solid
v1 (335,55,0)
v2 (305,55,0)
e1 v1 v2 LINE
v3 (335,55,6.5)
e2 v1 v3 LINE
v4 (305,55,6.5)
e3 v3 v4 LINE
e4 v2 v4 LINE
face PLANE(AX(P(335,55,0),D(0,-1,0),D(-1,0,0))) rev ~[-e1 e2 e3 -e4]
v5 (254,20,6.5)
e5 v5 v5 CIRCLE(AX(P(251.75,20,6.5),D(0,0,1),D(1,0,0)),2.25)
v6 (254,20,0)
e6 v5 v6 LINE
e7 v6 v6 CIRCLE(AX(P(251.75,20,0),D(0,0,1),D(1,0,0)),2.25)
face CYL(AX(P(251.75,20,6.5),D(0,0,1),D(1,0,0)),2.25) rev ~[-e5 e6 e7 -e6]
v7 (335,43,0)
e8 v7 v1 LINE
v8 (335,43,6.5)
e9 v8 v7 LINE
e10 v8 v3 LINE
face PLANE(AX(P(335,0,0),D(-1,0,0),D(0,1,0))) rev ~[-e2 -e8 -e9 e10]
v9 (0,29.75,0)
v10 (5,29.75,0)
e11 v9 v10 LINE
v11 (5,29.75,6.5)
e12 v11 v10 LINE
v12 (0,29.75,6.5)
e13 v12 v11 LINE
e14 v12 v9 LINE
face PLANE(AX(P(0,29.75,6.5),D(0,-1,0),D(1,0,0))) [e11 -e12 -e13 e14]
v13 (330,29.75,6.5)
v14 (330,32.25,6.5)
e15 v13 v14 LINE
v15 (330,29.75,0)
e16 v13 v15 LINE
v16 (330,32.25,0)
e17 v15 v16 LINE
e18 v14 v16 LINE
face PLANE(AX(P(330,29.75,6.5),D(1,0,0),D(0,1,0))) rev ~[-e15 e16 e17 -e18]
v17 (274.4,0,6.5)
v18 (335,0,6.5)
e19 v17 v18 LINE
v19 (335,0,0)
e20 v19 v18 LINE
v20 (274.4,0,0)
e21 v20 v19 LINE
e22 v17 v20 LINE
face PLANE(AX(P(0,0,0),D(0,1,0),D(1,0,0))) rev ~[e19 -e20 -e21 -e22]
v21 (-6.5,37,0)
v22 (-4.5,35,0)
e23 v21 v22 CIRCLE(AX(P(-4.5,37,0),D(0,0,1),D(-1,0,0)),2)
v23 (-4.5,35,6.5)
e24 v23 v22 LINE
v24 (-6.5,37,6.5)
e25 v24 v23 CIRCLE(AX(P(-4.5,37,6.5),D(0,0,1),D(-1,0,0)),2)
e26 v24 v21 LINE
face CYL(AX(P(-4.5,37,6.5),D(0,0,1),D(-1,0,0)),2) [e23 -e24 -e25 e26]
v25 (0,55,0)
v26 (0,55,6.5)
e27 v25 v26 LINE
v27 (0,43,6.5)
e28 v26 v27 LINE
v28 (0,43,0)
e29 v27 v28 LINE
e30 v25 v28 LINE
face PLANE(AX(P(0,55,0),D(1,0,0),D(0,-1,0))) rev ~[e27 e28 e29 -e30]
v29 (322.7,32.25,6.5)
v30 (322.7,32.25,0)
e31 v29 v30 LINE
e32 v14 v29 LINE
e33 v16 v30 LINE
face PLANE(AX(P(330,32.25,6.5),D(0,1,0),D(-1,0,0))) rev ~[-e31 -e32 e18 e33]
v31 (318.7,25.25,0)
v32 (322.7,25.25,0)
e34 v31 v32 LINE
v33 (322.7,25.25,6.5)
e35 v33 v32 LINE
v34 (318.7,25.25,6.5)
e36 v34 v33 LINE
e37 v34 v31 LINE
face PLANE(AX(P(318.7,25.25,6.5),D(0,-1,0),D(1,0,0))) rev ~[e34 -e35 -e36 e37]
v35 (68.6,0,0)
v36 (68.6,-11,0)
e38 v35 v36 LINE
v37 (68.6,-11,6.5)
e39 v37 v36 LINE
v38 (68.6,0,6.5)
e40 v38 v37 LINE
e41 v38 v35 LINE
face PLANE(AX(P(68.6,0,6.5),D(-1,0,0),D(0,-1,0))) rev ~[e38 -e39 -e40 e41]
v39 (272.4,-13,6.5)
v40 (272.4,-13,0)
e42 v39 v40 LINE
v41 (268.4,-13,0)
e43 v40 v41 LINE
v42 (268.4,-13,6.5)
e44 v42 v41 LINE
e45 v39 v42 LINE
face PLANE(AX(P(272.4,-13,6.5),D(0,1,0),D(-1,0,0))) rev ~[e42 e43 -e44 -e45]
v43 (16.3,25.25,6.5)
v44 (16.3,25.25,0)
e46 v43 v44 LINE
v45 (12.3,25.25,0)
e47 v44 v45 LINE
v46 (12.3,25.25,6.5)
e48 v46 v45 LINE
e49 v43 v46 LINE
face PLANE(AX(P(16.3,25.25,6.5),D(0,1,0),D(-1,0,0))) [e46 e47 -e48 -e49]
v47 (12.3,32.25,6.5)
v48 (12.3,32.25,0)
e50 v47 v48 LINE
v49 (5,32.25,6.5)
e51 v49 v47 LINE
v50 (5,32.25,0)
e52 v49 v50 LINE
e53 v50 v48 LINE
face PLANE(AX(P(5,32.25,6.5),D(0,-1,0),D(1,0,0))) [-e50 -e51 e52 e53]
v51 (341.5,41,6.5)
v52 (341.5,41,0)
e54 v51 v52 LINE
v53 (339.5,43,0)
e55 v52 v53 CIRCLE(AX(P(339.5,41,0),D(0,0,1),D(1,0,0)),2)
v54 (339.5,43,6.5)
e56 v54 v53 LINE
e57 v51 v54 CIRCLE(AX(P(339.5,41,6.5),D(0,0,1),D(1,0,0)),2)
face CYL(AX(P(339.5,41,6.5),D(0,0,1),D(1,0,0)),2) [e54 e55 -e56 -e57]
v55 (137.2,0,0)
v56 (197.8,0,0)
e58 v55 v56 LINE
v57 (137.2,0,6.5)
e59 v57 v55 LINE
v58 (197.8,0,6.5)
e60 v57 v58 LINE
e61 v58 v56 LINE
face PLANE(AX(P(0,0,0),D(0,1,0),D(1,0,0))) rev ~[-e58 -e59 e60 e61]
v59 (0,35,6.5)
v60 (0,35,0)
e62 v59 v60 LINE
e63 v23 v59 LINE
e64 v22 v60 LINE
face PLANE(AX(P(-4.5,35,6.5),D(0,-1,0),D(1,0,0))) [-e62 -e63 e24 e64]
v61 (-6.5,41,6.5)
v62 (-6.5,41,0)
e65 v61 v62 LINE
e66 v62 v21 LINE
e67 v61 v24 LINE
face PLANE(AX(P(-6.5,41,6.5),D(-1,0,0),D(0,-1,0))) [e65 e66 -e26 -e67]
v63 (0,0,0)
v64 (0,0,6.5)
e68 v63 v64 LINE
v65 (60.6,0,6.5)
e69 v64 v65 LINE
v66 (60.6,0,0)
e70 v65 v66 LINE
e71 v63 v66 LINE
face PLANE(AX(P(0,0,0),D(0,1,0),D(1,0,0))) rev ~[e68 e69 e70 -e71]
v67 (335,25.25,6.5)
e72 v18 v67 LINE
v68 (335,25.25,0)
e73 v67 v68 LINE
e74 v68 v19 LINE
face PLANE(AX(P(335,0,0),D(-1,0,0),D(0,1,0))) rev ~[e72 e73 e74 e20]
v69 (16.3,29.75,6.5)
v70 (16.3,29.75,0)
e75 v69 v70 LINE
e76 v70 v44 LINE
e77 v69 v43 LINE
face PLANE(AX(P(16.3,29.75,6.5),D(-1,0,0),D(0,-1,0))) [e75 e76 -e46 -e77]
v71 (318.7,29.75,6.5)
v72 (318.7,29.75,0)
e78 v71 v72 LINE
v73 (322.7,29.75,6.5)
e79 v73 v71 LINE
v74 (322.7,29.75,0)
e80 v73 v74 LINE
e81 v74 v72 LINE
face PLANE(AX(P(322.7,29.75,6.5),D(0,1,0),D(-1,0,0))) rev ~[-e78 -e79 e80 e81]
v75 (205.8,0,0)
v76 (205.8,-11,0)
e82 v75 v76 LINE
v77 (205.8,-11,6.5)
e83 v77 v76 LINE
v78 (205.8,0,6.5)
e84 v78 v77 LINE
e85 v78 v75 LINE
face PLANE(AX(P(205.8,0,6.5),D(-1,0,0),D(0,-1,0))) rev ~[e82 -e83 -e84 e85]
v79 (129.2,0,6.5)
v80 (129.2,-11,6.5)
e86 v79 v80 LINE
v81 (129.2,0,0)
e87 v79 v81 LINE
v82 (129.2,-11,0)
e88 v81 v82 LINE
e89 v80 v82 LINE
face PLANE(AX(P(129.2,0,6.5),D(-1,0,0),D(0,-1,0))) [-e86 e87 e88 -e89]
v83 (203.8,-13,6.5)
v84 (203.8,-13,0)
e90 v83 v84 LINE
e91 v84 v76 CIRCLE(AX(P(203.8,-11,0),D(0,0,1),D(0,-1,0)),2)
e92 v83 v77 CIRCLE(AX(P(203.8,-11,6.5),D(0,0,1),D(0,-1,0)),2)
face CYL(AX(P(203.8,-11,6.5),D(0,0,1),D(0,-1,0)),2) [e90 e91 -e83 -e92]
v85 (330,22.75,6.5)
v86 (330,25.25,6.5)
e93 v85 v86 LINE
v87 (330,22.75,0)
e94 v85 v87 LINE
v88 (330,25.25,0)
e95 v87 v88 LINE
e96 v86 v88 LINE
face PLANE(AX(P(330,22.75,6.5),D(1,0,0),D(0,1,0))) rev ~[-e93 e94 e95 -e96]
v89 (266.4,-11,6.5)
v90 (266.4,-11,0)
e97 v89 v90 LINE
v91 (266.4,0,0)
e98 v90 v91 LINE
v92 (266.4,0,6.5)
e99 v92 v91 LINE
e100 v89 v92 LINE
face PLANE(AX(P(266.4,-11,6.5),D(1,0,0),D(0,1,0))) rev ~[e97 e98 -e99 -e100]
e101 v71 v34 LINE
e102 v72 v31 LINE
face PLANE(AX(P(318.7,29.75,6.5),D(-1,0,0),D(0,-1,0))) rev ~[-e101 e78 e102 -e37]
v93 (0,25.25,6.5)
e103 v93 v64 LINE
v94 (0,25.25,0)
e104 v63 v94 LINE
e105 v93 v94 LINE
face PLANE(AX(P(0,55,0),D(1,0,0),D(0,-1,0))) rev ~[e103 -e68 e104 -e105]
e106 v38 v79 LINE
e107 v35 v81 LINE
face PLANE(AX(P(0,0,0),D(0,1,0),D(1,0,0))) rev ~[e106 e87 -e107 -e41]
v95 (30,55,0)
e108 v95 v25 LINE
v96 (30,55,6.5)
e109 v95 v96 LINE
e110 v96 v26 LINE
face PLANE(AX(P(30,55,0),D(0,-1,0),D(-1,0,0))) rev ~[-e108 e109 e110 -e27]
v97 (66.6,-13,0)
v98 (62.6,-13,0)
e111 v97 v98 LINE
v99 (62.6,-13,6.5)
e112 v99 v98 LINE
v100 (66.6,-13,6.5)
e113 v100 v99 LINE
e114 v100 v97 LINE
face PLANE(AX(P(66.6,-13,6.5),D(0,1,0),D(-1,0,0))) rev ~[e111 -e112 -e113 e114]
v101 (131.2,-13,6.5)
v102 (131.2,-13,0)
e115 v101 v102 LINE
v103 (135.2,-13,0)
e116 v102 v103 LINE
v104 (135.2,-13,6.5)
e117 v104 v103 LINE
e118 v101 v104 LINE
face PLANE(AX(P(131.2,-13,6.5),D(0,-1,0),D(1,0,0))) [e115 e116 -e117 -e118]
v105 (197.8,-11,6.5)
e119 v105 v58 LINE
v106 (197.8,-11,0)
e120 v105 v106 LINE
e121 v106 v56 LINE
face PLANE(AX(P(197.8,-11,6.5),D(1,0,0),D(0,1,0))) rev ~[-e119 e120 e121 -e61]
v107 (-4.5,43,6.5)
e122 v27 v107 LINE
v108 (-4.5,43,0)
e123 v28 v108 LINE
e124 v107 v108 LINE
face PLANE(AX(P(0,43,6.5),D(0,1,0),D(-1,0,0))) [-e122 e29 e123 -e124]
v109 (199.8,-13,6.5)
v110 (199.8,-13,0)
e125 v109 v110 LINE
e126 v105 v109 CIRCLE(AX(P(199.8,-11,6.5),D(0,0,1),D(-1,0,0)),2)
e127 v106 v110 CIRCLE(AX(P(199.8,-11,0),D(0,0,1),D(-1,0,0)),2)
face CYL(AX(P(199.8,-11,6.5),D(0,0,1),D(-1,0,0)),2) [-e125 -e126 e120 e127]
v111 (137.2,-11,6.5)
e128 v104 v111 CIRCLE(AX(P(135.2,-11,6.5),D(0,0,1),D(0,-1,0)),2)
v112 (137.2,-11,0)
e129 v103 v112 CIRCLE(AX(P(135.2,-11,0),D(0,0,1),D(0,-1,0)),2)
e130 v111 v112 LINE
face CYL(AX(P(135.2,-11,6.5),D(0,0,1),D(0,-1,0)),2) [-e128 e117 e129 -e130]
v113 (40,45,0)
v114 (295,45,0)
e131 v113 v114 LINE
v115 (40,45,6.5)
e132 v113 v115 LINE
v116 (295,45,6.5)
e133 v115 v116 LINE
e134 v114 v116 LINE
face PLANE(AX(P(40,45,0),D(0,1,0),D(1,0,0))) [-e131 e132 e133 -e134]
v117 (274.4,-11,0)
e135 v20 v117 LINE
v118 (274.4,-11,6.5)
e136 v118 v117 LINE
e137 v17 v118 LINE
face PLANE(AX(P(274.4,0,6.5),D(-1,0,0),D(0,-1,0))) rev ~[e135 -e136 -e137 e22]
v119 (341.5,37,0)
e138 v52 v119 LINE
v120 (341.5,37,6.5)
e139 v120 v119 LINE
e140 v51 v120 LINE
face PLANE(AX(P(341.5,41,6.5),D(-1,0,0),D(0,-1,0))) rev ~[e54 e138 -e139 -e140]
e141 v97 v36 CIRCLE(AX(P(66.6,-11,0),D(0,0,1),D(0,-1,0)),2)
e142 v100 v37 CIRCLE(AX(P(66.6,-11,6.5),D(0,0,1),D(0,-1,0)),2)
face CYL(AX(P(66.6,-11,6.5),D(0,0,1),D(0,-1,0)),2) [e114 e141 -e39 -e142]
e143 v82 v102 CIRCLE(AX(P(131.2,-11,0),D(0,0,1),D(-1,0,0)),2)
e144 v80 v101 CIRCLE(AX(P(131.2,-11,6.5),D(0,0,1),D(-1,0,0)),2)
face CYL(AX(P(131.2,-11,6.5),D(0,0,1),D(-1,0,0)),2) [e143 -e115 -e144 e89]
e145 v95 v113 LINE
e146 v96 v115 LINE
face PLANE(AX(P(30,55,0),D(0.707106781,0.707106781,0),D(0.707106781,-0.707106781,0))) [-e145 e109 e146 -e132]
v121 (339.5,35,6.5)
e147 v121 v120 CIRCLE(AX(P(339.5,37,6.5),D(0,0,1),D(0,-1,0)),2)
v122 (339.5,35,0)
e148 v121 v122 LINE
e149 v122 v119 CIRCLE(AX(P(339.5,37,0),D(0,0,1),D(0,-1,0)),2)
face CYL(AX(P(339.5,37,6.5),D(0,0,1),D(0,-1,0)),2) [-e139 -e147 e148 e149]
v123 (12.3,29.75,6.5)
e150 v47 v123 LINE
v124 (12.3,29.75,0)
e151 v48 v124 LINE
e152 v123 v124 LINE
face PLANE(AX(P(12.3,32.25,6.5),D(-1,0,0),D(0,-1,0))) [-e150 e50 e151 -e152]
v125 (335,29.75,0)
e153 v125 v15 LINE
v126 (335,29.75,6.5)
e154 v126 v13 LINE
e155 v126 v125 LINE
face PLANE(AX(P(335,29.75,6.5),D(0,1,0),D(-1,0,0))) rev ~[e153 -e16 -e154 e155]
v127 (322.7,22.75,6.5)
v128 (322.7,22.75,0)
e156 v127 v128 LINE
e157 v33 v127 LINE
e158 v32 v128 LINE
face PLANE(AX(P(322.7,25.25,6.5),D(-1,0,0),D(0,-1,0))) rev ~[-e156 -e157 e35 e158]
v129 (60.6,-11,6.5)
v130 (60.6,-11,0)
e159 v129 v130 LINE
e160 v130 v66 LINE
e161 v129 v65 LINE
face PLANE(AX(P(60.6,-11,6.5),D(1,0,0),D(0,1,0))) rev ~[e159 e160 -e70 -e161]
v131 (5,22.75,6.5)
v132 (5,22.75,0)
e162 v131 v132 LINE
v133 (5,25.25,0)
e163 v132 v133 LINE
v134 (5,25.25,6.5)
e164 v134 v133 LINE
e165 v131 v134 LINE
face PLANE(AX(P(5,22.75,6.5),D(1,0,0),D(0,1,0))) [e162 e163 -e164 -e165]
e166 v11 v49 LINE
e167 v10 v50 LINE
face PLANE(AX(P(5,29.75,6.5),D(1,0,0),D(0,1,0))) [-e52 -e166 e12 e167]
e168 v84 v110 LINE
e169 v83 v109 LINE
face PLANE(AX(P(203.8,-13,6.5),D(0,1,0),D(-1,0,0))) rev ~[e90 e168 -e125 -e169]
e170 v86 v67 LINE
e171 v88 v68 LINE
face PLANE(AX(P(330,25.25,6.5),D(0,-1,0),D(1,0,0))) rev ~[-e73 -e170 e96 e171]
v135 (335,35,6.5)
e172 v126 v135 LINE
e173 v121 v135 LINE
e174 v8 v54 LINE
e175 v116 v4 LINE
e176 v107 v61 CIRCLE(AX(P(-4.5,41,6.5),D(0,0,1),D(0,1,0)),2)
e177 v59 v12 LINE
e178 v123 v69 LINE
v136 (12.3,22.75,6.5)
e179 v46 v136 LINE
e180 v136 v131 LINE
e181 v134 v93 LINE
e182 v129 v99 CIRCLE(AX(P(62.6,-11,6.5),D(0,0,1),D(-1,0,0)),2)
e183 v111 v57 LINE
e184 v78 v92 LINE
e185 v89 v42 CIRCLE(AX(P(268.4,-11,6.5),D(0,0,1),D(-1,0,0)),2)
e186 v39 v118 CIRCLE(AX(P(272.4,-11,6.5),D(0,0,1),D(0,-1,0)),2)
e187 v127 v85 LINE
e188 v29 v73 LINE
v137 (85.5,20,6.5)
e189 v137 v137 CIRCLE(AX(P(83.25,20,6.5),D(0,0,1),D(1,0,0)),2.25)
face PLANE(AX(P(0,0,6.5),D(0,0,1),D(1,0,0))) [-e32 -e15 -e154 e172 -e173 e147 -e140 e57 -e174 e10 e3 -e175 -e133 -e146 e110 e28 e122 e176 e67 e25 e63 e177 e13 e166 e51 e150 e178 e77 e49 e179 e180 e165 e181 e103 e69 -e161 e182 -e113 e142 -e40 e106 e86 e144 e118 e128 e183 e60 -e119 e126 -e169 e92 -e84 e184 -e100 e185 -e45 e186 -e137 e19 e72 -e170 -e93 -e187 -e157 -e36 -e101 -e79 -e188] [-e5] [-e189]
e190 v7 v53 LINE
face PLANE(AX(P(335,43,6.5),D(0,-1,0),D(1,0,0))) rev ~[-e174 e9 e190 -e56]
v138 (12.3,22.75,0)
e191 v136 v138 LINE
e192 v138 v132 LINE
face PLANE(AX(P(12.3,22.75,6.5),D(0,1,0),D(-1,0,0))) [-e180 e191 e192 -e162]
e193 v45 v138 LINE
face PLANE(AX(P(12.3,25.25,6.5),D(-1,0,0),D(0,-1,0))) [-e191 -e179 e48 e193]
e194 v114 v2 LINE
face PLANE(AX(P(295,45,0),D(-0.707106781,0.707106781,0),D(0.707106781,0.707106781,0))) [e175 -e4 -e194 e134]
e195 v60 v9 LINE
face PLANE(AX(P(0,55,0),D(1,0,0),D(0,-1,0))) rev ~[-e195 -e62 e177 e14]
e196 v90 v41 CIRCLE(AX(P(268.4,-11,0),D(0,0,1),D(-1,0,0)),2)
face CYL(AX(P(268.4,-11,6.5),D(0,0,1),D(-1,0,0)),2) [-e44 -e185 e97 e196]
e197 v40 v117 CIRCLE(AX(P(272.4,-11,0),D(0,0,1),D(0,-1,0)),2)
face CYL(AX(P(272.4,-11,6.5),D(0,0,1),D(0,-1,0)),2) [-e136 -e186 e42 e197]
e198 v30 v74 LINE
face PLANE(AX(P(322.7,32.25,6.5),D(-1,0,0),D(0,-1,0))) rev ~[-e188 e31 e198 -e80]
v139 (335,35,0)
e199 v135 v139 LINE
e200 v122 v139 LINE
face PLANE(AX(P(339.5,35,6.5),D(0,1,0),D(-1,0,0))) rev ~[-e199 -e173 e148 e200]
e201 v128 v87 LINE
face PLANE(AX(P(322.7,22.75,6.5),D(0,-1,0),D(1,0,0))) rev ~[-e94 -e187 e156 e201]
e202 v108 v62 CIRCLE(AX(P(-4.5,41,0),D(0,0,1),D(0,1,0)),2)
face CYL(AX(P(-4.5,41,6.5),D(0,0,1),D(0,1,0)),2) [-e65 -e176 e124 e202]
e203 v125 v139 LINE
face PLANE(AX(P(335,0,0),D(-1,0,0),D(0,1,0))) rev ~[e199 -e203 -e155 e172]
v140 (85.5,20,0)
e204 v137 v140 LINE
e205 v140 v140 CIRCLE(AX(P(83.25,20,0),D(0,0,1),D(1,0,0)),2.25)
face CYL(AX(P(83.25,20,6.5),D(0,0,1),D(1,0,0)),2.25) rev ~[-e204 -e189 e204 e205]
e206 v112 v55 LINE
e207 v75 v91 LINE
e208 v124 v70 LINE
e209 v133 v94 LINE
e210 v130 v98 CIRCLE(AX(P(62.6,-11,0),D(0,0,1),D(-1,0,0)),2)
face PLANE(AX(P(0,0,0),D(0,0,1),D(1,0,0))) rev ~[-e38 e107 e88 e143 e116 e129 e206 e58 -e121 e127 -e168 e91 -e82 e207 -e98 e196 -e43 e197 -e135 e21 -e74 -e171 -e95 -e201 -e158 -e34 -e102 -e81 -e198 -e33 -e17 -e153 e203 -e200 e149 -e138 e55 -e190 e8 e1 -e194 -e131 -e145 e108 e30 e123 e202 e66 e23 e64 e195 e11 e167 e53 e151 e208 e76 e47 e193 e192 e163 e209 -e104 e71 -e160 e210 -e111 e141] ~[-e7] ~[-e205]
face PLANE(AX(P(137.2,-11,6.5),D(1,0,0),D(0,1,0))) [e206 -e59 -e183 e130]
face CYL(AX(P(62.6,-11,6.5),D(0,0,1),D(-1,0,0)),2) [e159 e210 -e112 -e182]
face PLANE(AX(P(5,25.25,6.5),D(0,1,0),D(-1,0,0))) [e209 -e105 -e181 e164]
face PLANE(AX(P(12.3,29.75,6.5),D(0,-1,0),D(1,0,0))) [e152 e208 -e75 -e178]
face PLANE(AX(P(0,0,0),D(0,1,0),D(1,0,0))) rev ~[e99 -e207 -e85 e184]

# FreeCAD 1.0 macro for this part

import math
import FreeCAD as App
import Part
import Sketcher
Q = App.Units.Quantity

doc = App.newDocument("Part")
body = doc.addObject("PartDesign::Body", "Body")

# Sketch on XY plane
sketch1 = body.newObject("Sketcher::SketchObject", "Sketch")
sketch1.AttachmentSupport = (doc.getObject("XY_Plane"), [""])
sketch1.MapMode = "FlatFace"
sketch1.addGeometry(Part.LineSegment(App.Vector(0, 55, 0), App.Vector(0, 0, 0)), False)
sketch1.addGeometry(Part.LineSegment(App.Vector(0, 0, 0), App.Vector(335, 0, 0)), False)
sketch1.addGeometry(Part.LineSegment(App.Vector(335, 0, 0), App.Vector(335, 55, 0)), False)
sketch1.addGeometry(Part.LineSegment(App.Vector(335, 55, 0), App.Vector(305, 55, 0)), False)
sketch1.addGeometry(Part.LineSegment(App.Vector(305, 55, 0), App.Vector(295, 45, 0)), False)
sketch1.addGeometry(Part.LineSegment(App.Vector(295, 45, 0), App.Vector(40, 45, 0)), False)
sketch1.addGeometry(Part.LineSegment(App.Vector(40, 45, 0), App.Vector(30, 55, 0)), False)
sketch1.addGeometry(Part.LineSegment(App.Vector(30, 55, 0), App.Vector(0, 55, 0)), False)
sketch1.addConstraint(Sketcher.Constraint("Coincident", 0, 2, 1, 1))
sketch1.addConstraint(Sketcher.Constraint("Coincident", 1, 2, 2, 1))
sketch1.addConstraint(Sketcher.Constraint("Coincident", 2, 2, 3, 1))
sketch1.addConstraint(Sketcher.Constraint("Coincident", 3, 2, 4, 1))
sketch1.addConstraint(Sketcher.Constraint("Coincident", 4, 2, 5, 1))
sketch1.addConstraint(Sketcher.Constraint("Coincident", 5, 2, 6, 1))
sketch1.addConstraint(Sketcher.Constraint("Coincident", 6, 2, 7, 1))
sketch1.addConstraint(Sketcher.Constraint("Coincident", 7, 2, 0, 1))
sketch1.addConstraint(Sketcher.Constraint("Vertical", 0))
sketch1.addConstraint(Sketcher.Constraint("Horizontal", 1))
sketch1.addConstraint(Sketcher.Constraint("Vertical", 2))
sketch1.addConstraint(Sketcher.Constraint("Horizontal", 3))
sketch1.addConstraint(Sketcher.Constraint("Horizontal", 5))
sketch1.addConstraint(Sketcher.Constraint("Horizontal", 7))
sketch1.addConstraint(Sketcher.Constraint("Coincident", 0, 2, -1, 1))
sketch1.addConstraint(Sketcher.Constraint("Perpendicular", 4, 6))
sketch1.addConstraint(Sketcher.Constraint("Horizontal", 3, 2, 6, 2))
sketch1.addConstraint(Sketcher.Constraint("Equal", 3, 7))
sketch1.addConstraint(Sketcher.Constraint("Equal", 4, 6))
sketch1.addConstraint(Sketcher.Constraint("DistanceX", 1, 1, 1, 2, Q("335 mm")))
sketch1.addConstraint(Sketcher.Constraint("DistanceX", 3, 2, 3, 1, Q("30 mm")))
sketch1.addConstraint(Sketcher.Constraint("DistanceY", 0, 2, 0, 1, Q("55 mm")))
sketch1.addConstraint(Sketcher.Constraint("DistanceY", -1, 1, 4, 2, Q("45 mm")))
pad1 = body.newObject("PartDesign::Pad", "Pad")
pad1.Profile = sketch1
pad1.Length = 6.5

# Sketch on XY plane
sketch2 = body.newObject("Sketcher::SketchObject", "Sketch001")
sketch2.AttachmentSupport = (doc.getObject("XY_Plane"), [""])
sketch2.MapMode = "FlatFace"
sketch2.AttachmentOffset = App.Placement(App.Vector(0, 0, 6.5), App.Rotation())
sketch2.addGeometry(Part.LineSegment(App.Vector(5, 29.75, 0), App.Vector(0, 29.75, 0)), False)
sketch2.addGeometry(Part.LineSegment(App.Vector(0, 29.75, 0), App.Vector(0, 25.25, 0)), False)
sketch2.addGeometry(Part.LineSegment(App.Vector(0, 25.25, 0), App.Vector(5, 25.25, 0)), False)
sketch2.addGeometry(Part.LineSegment(App.Vector(5, 25.25, 0), App.Vector(5, 22.75, 0)), False)
sketch2.addGeometry(Part.LineSegment(App.Vector(5, 22.75, 0), App.Vector(12.3, 22.75, 0)), False)
sketch2.addGeometry(Part.LineSegment(App.Vector(12.3, 22.75, 0), App.Vector(12.3, 25.25, 0)), False)
sketch2.addGeometry(Part.LineSegment(App.Vector(12.3, 25.25, 0), App.Vector(16.3, 25.25, 0)), False)
sketch2.addGeometry(Part.LineSegment(App.Vector(16.3, 25.25, 0), App.Vector(16.3, 29.75, 0)), False)
sketch2.addGeometry(Part.LineSegment(App.Vector(16.3, 29.75, 0), App.Vector(12.3, 29.75, 0)), False)
sketch2.addGeometry(Part.LineSegment(App.Vector(12.3, 29.75, 0), App.Vector(12.3, 32.25, 0)), False)
sketch2.addGeometry(Part.LineSegment(App.Vector(12.3, 32.25, 0), App.Vector(5, 32.25, 0)), False)
sketch2.addGeometry(Part.LineSegment(App.Vector(5, 32.25, 0), App.Vector(5, 29.75, 0)), False)
sketch2.addGeometry(Part.LineSegment(App.Vector(330, 25.25, 0), App.Vector(335, 25.25, 0)), False)
sketch2.addGeometry(Part.LineSegment(App.Vector(335, 25.25, 0), App.Vector(335, 29.75, 0)), False)
sketch2.addGeometry(Part.LineSegment(App.Vector(335, 29.75, 0), App.Vector(330, 29.75, 0)), False)
sketch2.addGeometry(Part.LineSegment(App.Vector(330, 29.75, 0), App.Vector(330, 32.25, 0)), False)
sketch2.addGeometry(Part.LineSegment(App.Vector(330, 32.25, 0), App.Vector(322.7, 32.25, 0)), False)
sketch2.addGeometry(Part.LineSegment(App.Vector(322.7, 32.25, 0), App.Vector(322.7, 29.75, 0)), False)
sketch2.addGeometry(Part.LineSegment(App.Vector(322.7, 29.75, 0), App.Vector(318.7, 29.75, 0)), False)
sketch2.addGeometry(Part.LineSegment(App.Vector(318.7, 29.75, 0), App.Vector(318.7, 25.25, 0)), False)
sketch2.addGeometry(Part.LineSegment(App.Vector(318.7, 25.25, 0), App.Vector(322.7, 25.25, 0)), False)
sketch2.addGeometry(Part.LineSegment(App.Vector(322.7, 25.25, 0), App.Vector(322.7, 22.75, 0)), False)
sketch2.addGeometry(Part.LineSegment(App.Vector(322.7, 22.75, 0), App.Vector(330, 22.75, 0)), False)
sketch2.addGeometry(Part.LineSegment(App.Vector(330, 22.75, 0), App.Vector(330, 25.25, 0)), False)
sketch2.addConstraint(Sketcher.Constraint("Coincident", 0, 2, 1, 1))
sketch2.addConstraint(Sketcher.Constraint("Coincident", 1, 2, 2, 1))
sketch2.addConstraint(Sketcher.Constraint("Coincident", 2, 2, 3, 1))
sketch2.addConstraint(Sketcher.Constraint("Coincident", 3, 2, 4, 1))
sketch2.addConstraint(Sketcher.Constraint("Coincident", 4, 2, 5, 1))
sketch2.addConstraint(Sketcher.Constraint("Coincident", 5, 2, 6, 1))
sketch2.addConstraint(Sketcher.Constraint("Coincident", 6, 2, 7, 1))
sketch2.addConstraint(Sketcher.Constraint("Coincident", 7, 2, 8, 1))
sketch2.addConstraint(Sketcher.Constraint("Coincident", 8, 2, 9, 1))
sketch2.addConstraint(Sketcher.Constraint("Coincident", 9, 2, 10, 1))
sketch2.addConstraint(Sketcher.Constraint("Coincident", 10, 2, 11, 1))
sketch2.addConstraint(Sketcher.Constraint("Coincident", 11, 2, 0, 1))
sketch2.addConstraint(Sketcher.Constraint("Coincident", 12, 2, 13, 1))
sketch2.addConstraint(Sketcher.Constraint("Coincident", 13, 2, 14, 1))
sketch2.addConstraint(Sketcher.Constraint("Coincident", 14, 2, 15, 1))
sketch2.addConstraint(Sketcher.Constraint("Coincident", 15, 2, 16, 1))
sketch2.addConstraint(Sketcher.Constraint("Coincident", 16, 2, 17, 1))
sketch2.addConstraint(Sketcher.Constraint("Coincident", 17, 2, 18, 1))
sketch2.addConstraint(Sketcher.Constraint("Coincident", 18, 2, 19, 1))
sketch2.addConstraint(Sketcher.Constraint("Coincident", 19, 2, 20, 1))
sketch2.addConstraint(Sketcher.Constraint("Coincident", 20, 2, 21, 1))
sketch2.addConstraint(Sketcher.Constraint("Coincident", 21, 2, 22, 1))
sketch2.addConstraint(Sketcher.Constraint("Coincident", 22, 2, 23, 1))
sketch2.addConstraint(Sketcher.Constraint("Coincident", 23, 2, 12, 1))
sketch2.addConstraint(Sketcher.Constraint("Horizontal", 0))
sketch2.addConstraint(Sketcher.Constraint("Vertical", 1))
sketch2.addConstraint(Sketcher.Constraint("Horizontal", 2))
sketch2.addConstraint(Sketcher.Constraint("Vertical", 3))
sketch2.addConstraint(Sketcher.Constraint("Horizontal", 4))
sketch2.addConstraint(Sketcher.Constraint("Vertical", 5))
sketch2.addConstraint(Sketcher.Constraint("Horizontal", 6))
sketch2.addConstraint(Sketcher.Constraint("Vertical", 7))
sketch2.addConstraint(Sketcher.Constraint("Horizontal", 8))
sketch2.addConstraint(Sketcher.Constraint("Vertical", 9))
sketch2.addConstraint(Sketcher.Constraint("Horizontal", 10))
sketch2.addConstraint(Sketcher.Constraint("Vertical", 11))
sketch2.addConstraint(Sketcher.Constraint("Horizontal", 12))
sketch2.addConstraint(Sketcher.Constraint("Vertical", 13))
sketch2.addConstraint(Sketcher.Constraint("Horizontal", 14))
sketch2.addConstraint(Sketcher.Constraint("Vertical", 15))
sketch2.addConstraint(Sketcher.Constraint("Horizontal", 16))
sketch2.addConstraint(Sketcher.Constraint("Vertical", 17))
sketch2.addConstraint(Sketcher.Constraint("Horizontal", 18))
sketch2.addConstraint(Sketcher.Constraint("Vertical", 19))
sketch2.addConstraint(Sketcher.Constraint("Horizontal", 20))
sketch2.addConstraint(Sketcher.Constraint("Vertical", 21))
sketch2.addConstraint(Sketcher.Constraint("Horizontal", 22))
sketch2.addConstraint(Sketcher.Constraint("Vertical", 23))
sketch2.addConstraint(Sketcher.Constraint("PointOnObject", 0, 2, -2))
sketch2.addConstraint(Sketcher.Constraint("Horizontal", 2, 2, 5, 2))
sketch2.addConstraint(Sketcher.Constraint("Horizontal", 0, 2, 7, 2))
sketch2.addConstraint(Sketcher.Constraint("Horizontal", 6, 2, 12, 2))
sketch2.addConstraint(Sketcher.Constraint("Horizontal", 11, 2, 13, 2))
sketch2.addConstraint(Sketcher.Constraint("Horizontal", 10, 2, 15, 2))
sketch2.addConstraint(Sketcher.Constraint("Horizontal", 14, 2, 17, 2))
sketch2.addConstraint(Sketcher.Constraint("Horizontal", 12, 2, 19, 2))
sketch2.addConstraint(Sketcher.Constraint("Horizontal", 4, 2, 21, 2))
sketch2.addConstraint(Sketcher.Constraint("Vertical", 5, 2, 8, 2))
sketch2.addConstraint(Sketcher.Constraint("Vertical", 3, 2, 10, 2))
sketch2.addConstraint(Sketcher.Constraint("Vertical", 17, 2, 20, 2))
sketch2.addConstraint(Sketcher.Constraint("Vertical", 15, 2, 22, 2))
sketch2.addConstraint(Sketcher.Constraint("Equal", 2, 12))
sketch2.addConstraint(Sketcher.Constraint("Equal", 10, 16))
sketch2.addConstraint(Sketcher.Constraint("Equal", 8, 18))
sketch2.addConstraint(Sketcher.Constraint("Equal", 5, 9))
sketch2.addConstraint(Sketcher.Constraint("DistanceX", 0, 2, 0, 1, Q("5 mm")))
sketch2.addConstraint(Sketcher.Constraint("DistanceX", 6, 1, 6, 2, Q("4 mm")))
sketch2.addConstraint(Sketcher.Constraint("DistanceX", 4, 1, 4, 2, Q("7.3 mm")))
sketch2.addConstraint(Sketcher.Constraint("DistanceY", 1, 2, 1, 1, Q("4.5 mm")))
sketch2.addConstraint(Sketcher.Constraint("DistanceY", 3, 2, 3, 1, Q("2.5 mm")))
sketch2.addConstraint(Sketcher.Constraint("DistanceX", -1, 1, 12, 2, Q("335 mm")))
sketch2.addConstraint(Sketcher.Constraint("DistanceY", -1, 1, 0, 2, Q("29.75 mm")))
pocket1 = body.newObject("PartDesign::Pocket", "Pocket")
pocket1.Profile = sketch2
pocket1.Type = "ThroughAll"

# Sketch on XY plane
sketch3 = body.newObject("Sketcher::SketchObject", "Sketch002")
sketch3.AttachmentSupport = (doc.getObject("XY_Plane"), [""])
sketch3.MapMode = "FlatFace"
sketch3.AttachmentOffset = App.Placement(App.Vector(0, 0, 6.5), App.Rotation())
sketch3.addGeometry(Part.LineSegment(App.Vector(335, 20, 0), App.Vector(335, 12, 0)), False)
sketch3.addGeometry(Part.LineSegment(App.Vector(335, 12, 0), App.Vector(339.5, 12, 0)), False)
sketch3.addGeometry(Part.ArcOfCircle(Part.Circle(App.Vector(339.5, 14, 0), App.Vector(0, 0, 1), 2), math.radians(-90), math.radians(0)), False)
sketch3.addGeometry(Part.LineSegment(App.Vector(341.5, 14, 0), App.Vector(341.5, 18, 0)), False)
sketch3.addGeometry(Part.ArcOfCircle(Part.Circle(App.Vector(339.5, 18, 0), App.Vector(0, 0, 1), 2), math.radians(0), math.radians(90)), False)
sketch3.addGeometry(Part.LineSegment(App.Vector(339.5, 20, 0), App.Vector(335, 20, 0)), False)
sketch3.addGeometry(Part.LineSegment(App.Vector(274.4, 0, 0), App.Vector(266.4, 0, 0)), False)
sketch3.addGeometry(Part.LineSegment(App.Vector(266.4, 0, 0), App.Vector(266.4, -11, 0)), False)
sketch3.addGeometry(Part.ArcOfCircle(Part.Circle(App.Vector(268.4, -11, 0), App.Vector(0, 0, 1), 2), math.radians(180), math.radians(270)), False)
sketch3.addGeometry(Part.LineSegment(App.Vector(268.4, -13, 0), App.Vector(272.4, -13, 0)), False)
sketch3.addGeometry(Part.ArcOfCircle(Part.Circle(App.Vector(272.4, -11, 0), App.Vector(0, 0, 1), 2), math.radians(-90), math.radians(0)), False)
sketch3.addGeometry(Part.LineSegment(App.Vector(274.4, -11, 0), App.Vector(274.4, 0, 0)), False)
sketch3.addGeometry(Part.LineSegment(App.Vector(205.8, 0, 0), App.Vector(197.8, 0, 0)), False)
sketch3.addGeometry(Part.LineSegment(App.Vector(197.8, 0, 0), App.Vector(197.8, -11, 0)), False)
sketch3.addGeometry(Part.ArcOfCircle(Part.Circle(App.Vector(199.8, -11, 0), App.Vector(0, 0, 1), 2), math.radians(180), math.radians(270)), False)
sketch3.addGeometry(Part.LineSegment(App.Vector(199.8, -13, 0), App.Vector(203.8, -13, 0)), False)
sketch3.addGeometry(Part.ArcOfCircle(Part.Circle(App.Vector(203.8, -11, 0), App.Vector(0, 0, 1), 2), math.radians(-90), math.radians(0)), False)
sketch3.addGeometry(Part.LineSegment(App.Vector(205.8, -11, 0), App.Vector(205.8, 0, 0)), False)
sketch3.addGeometry(Part.LineSegment(App.Vector(137.2, 0, 0), App.Vector(129.2, 0, 0)), False)
sketch3.addGeometry(Part.LineSegment(App.Vector(129.2, 0, 0), App.Vector(129.2, -11, 0)), False)
sketch3.addGeometry(Part.ArcOfCircle(Part.Circle(App.Vector(131.2, -11, 0), App.Vector(0, 0, 1), 2), math.radians(180), math.radians(270)), False)
sketch3.addGeometry(Part.LineSegment(App.Vector(131.2, -13, 0), App.Vector(135.2, -13, 0)), False)
sketch3.addGeometry(Part.ArcOfCircle(Part.Circle(App.Vector(135.2, -11, 0), App.Vector(0, 0, 1), 2), math.radians(-90), math.radians(0)), False)
sketch3.addGeometry(Part.LineSegment(App.Vector(137.2, -11, 0), App.Vector(137.2, 0, 0)), False)
sketch3.addGeometry(Part.LineSegment(App.Vector(68.6, 0, 0), App.Vector(60.6, 0, 0)), False)
sketch3.addGeometry(Part.LineSegment(App.Vector(60.6, 0, 0), App.Vector(60.6, -11, 0)), False)
sketch3.addGeometry(Part.ArcOfCircle(Part.Circle(App.Vector(62.6, -11, 0), App.Vector(0, 0, 1), 2), math.radians(180), math.radians(270)), False)
sketch3.addGeometry(Part.LineSegment(App.Vector(62.6, -13, 0), App.Vector(66.6, -13, 0)), False)
sketch3.addGeometry(Part.ArcOfCircle(Part.Circle(App.Vector(66.6, -11, 0), App.Vector(0, 0, 1), 2), math.radians(-90), math.radians(0)), False)
sketch3.addGeometry(Part.LineSegment(App.Vector(68.6, -11, 0), App.Vector(68.6, 0, 0)), False)
sketch3.addGeometry(Part.LineSegment(App.Vector(0, 12, 0), App.Vector(0, 20, 0)), False)
sketch3.addGeometry(Part.LineSegment(App.Vector(0, 20, 0), App.Vector(-4.5, 20, 0)), False)
sketch3.addGeometry(Part.ArcOfCircle(Part.Circle(App.Vector(-4.5, 18, 0), App.Vector(0, 0, 1), 2), math.radians(90), math.radians(180)), False)
sketch3.addGeometry(Part.LineSegment(App.Vector(-6.5, 18, 0), App.Vector(-6.5, 14, 0)), False)
sketch3.addGeometry(Part.ArcOfCircle(Part.Circle(App.Vector(-4.5, 14, 0), App.Vector(0, 0, 1), 2), math.radians(180), math.radians(270)), False)
sketch3.addGeometry(Part.LineSegment(App.Vector(-4.5, 12, 0), App.Vector(0, 12, 0)), False)
sketch3.addGeometry(Part.LineSegment(App.Vector(335, 43, 0), App.Vector(335, 35, 0)), False)
sketch3.addGeometry(Part.LineSegment(App.Vector(335, 35, 0), App.Vector(339.5, 35, 0)), False)
sketch3.addGeometry(Part.ArcOfCircle(Part.Circle(App.Vector(339.5, 37, 0), App.Vector(0, 0, 1), 2), math.radians(-90), math.radians(0)), False)
sketch3.addGeometry(Part.LineSegment(App.Vector(341.5, 37, 0), App.Vector(341.5, 41, 0)), False)
sketch3.addGeometry(Part.ArcOfCircle(Part.Circle(App.Vector(339.5, 41, 0), App.Vector(0, 0, 1), 2), math.radians(0), math.radians(90)), False)
sketch3.addGeometry(Part.LineSegment(App.Vector(339.5, 43, 0), App.Vector(335, 43, 0)), False)
sketch3.addGeometry(Part.LineSegment(App.Vector(0, 35, 0), App.Vector(0, 43, 0)), False)
sketch3.addGeometry(Part.LineSegment(App.Vector(0, 43, 0), App.Vector(-4.5, 43, 0)), False)
sketch3.addGeometry(Part.ArcOfCircle(Part.Circle(App.Vector(-4.5, 41, 0), App.Vector(0, 0, 1), 2), math.radians(90), math.radians(180)), False)
sketch3.addGeometry(Part.LineSegment(App.Vector(-6.5, 41, 0), App.Vector(-6.5, 37, 0)), False)
sketch3.addGeometry(Part.ArcOfCircle(Part.Circle(App.Vector(-4.5, 37, 0), App.Vector(0, 0, 1), 2), math.radians(180), math.radians(270)), False)
sketch3.addGeometry(Part.LineSegment(App.Vector(-4.5, 35, 0), App.Vector(0, 35, 0)), False)
sketch3.addConstraint(Sketcher.Constraint("Coincident", 0, 2, 1, 1))
sketch3.addConstraint(Sketcher.Constraint("Tangent", 1, 2, 2, 1))
sketch3.addConstraint(Sketcher.Constraint("Tangent", 2, 2, 3, 1))
sketch3.addConstraint(Sketcher.Constraint("Tangent", 3, 2, 4, 1))
sketch3.addConstraint(Sketcher.Constraint("Tangent", 4, 2, 5, 1))
sketch3.addConstraint(Sketcher.Constraint("Coincident", 5, 2, 0, 1))
sketch3.addConstraint(Sketcher.Constraint("Coincident", 6, 2, 7, 1))
sketch3.addConstraint(Sketcher.Constraint("Tangent", 7, 2, 8, 1))
sketch3.addConstraint(Sketcher.Constraint("Tangent", 8, 2, 9, 1))
sketch3.addConstraint(Sketcher.Constraint("Tangent", 9, 2, 10, 1))
sketch3.addConstraint(Sketcher.Constraint("Tangent", 10, 2, 11, 1))
sketch3.addConstraint(Sketcher.Constraint("Coincident", 11, 2, 6, 1))
sketch3.addConstraint(Sketcher.Constraint("Coincident", 12, 2, 13, 1))
sketch3.addConstraint(Sketcher.Constraint("Tangent", 13, 2, 14, 1))
sketch3.addConstraint(Sketcher.Constraint("Tangent", 14, 2, 15, 1))
sketch3.addConstraint(Sketcher.Constraint("Tangent", 15, 2, 16, 1))
sketch3.addConstraint(Sketcher.Constraint("Tangent", 16, 2, 17, 1))
sketch3.addConstraint(Sketcher.Constraint("Coincident", 17, 2, 12, 1))
sketch3.addConstraint(Sketcher.Constraint("Coincident", 18, 2, 19, 1))
sketch3.addConstraint(Sketcher.Constraint("Tangent", 19, 2, 20, 1))
sketch3.addConstraint(Sketcher.Constraint("Tangent", 20, 2, 21, 1))
sketch3.addConstraint(Sketcher.Constraint("Tangent", 21, 2, 22, 1))
sketch3.addConstraint(Sketcher.Constraint("Tangent", 22, 2, 23, 1))
sketch3.addConstraint(Sketcher.Constraint("Coincident", 23, 2, 18, 1))
sketch3.addConstraint(Sketcher.Constraint("Coincident", 24, 2, 25, 1))
sketch3.addConstraint(Sketcher.Constraint("Tangent", 25, 2, 26, 1))
sketch3.addConstraint(Sketcher.Constraint("Tangent", 26, 2, 27, 1))
sketch3.addConstraint(Sketcher.Constraint("Tangent", 27, 2, 28, 1))
sketch3.addConstraint(Sketcher.Constraint("Tangent", 28, 2, 29, 1))
sketch3.addConstraint(Sketcher.Constraint("Coincident", 29, 2, 24, 1))
sketch3.addConstraint(Sketcher.Constraint("Coincident", 30, 2, 31, 1))
sketch3.addConstraint(Sketcher.Constraint("Tangent", 31, 2, 32, 1))
sketch3.addConstraint(Sketcher.Constraint("Tangent", 32, 2, 33, 1))
sketch3.addConstraint(Sketcher.Constraint("Tangent", 33, 2, 34, 1))
sketch3.addConstraint(Sketcher.Constraint("Tangent", 34, 2, 35, 1))
sketch3.addConstraint(Sketcher.Constraint("Coincident", 35, 2, 30, 1))
sketch3.addConstraint(Sketcher.Constraint("Coincident", 36, 2, 37, 1))
sketch3.addConstraint(Sketcher.Constraint("Tangent", 37, 2, 38, 1))
sketch3.addConstraint(Sketcher.Constraint("Tangent", 38, 2, 39, 1))
sketch3.addConstraint(Sketcher.Constraint("Tangent", 39, 2, 40, 1))
sketch3.addConstraint(Sketcher.Constraint("Tangent", 40, 2, 41, 1))
sketch3.addConstraint(Sketcher.Constraint("Coincident", 41, 2, 36, 1))
sketch3.addConstraint(Sketcher.Constraint("Coincident", 42, 2, 43, 1))
sketch3.addConstraint(Sketcher.Constraint("Tangent", 43, 2, 44, 1))
sketch3.addConstraint(Sketcher.Constraint("Tangent", 44, 2, 45, 1))
sketch3.addConstraint(Sketcher.Constraint("Tangent", 45, 2, 46, 1))
sketch3.addConstraint(Sketcher.Constraint("Tangent", 46, 2, 47, 1))
sketch3.addConstraint(Sketcher.Constraint("Coincident", 47, 2, 42, 1))
sketch3.addConstraint(Sketcher.Constraint("Vertical", 0))
sketch3.addConstraint(Sketcher.Constraint("Horizontal", 1))
sketch3.addConstraint(Sketcher.Constraint("Vertical", 3))
sketch3.addConstraint(Sketcher.Constraint("Horizontal", 5))
sketch3.addConstraint(Sketcher.Constraint("Horizontal", 6))
sketch3.addConstraint(Sketcher.Constraint("Vertical", 7))
sketch3.addConstraint(Sketcher.Constraint("Horizontal", 9))
sketch3.addConstraint(Sketcher.Constraint("Vertical", 11))
sketch3.addConstraint(Sketcher.Constraint("Horizontal", 12))
sketch3.addConstraint(Sketcher.Constraint("Vertical", 13))
sketch3.addConstraint(Sketcher.Constraint("Horizontal", 15))
sketch3.addConstraint(Sketcher.Constraint("Vertical", 17))
sketch3.addConstraint(Sketcher.Constraint("Horizontal", 18))
sketch3.addConstraint(Sketcher.Constraint("Vertical", 19))
sketch3.addConstraint(Sketcher.Constraint("Horizontal", 21))
sketch3.addConstraint(Sketcher.Constraint("Vertical", 23))
sketch3.addConstraint(Sketcher.Constraint("Horizontal", 24))
sketch3.addConstraint(Sketcher.Constraint("Vertical", 25))
sketch3.addConstraint(Sketcher.Constraint("Horizontal", 27))
sketch3.addConstraint(Sketcher.Constraint("Vertical", 29))
sketch3.addConstraint(Sketcher.Constraint("Vertical", 30))
sketch3.addConstraint(Sketcher.Constraint("Horizontal", 31))
sketch3.addConstraint(Sketcher.Constraint("Vertical", 33))
sketch3.addConstraint(Sketcher.Constraint("Horizontal", 35))
sketch3.addConstraint(Sketcher.Constraint("Vertical", 36))
sketch3.addConstraint(Sketcher.Constraint("Horizontal", 37))
sketch3.addConstraint(Sketcher.Constraint("Vertical", 39))
sketch3.addConstraint(Sketcher.Constraint("Horizontal", 41))
sketch3.addConstraint(Sketcher.Constraint("Vertical", 42))
sketch3.addConstraint(Sketcher.Constraint("Horizontal", 43))
sketch3.addConstraint(Sketcher.Constraint("Vertical", 45))
sketch3.addConstraint(Sketcher.Constraint("Horizontal", 47))
sketch3.addConstraint(Sketcher.Constraint("Equal", 2, 4))
sketch3.addConstraint(Sketcher.Constraint("Equal", 4, 8))
sketch3.addConstraint(Sketcher.Constraint("Equal", 8, 10))
sketch3.addConstraint(Sketcher.Constraint("Equal", 10, 14))
sketch3.addConstraint(Sketcher.Constraint("Equal", 14, 16))
sketch3.addConstraint(Sketcher.Constraint("Equal", 16, 20))
sketch3.addConstraint(Sketcher.Constraint("Equal", 20, 22))
sketch3.addConstraint(Sketcher.Constraint("Equal", 22, 26))
sketch3.addConstraint(Sketcher.Constraint("Equal", 26, 28))
sketch3.addConstraint(Sketcher.Constraint("Equal", 28, 32))
sketch3.addConstraint(Sketcher.Constraint("Equal", 32, 34))
sketch3.addConstraint(Sketcher.Constraint("Equal", 34, 38))
sketch3.addConstraint(Sketcher.Constraint("Equal", 38, 40))
sketch3.addConstraint(Sketcher.Constraint("Equal", 40, 44))
sketch3.addConstraint(Sketcher.Constraint("Equal", 44, 46))
sketch3.addConstraint(Sketcher.Constraint("PointOnObject", 6, 2, -1))
sketch3.addConstraint(Sketcher.Constraint("PointOnObject", 12, 2, -1))
sketch3.addConstraint(Sketcher.Constraint("PointOnObject", 18, 2, -1))
sketch3.addConstraint(Sketcher.Constraint("PointOnObject", 24, 2, -1))
sketch3.addConstraint(Sketcher.Constraint("PointOnObject", 30, 2, -2))
sketch3.addConstraint(Sketcher.Constraint("PointOnObject", 42, 2, -2))
sketch3.addConstraint(Sketcher.Constraint("Horizontal", 10, 3, 14, 3))
sketch3.addConstraint(Sketcher.Constraint("Horizontal", 16, 3, 20, 3))
sketch3.addConstraint(Sketcher.Constraint("Horizontal", 22, 3, 26, 3))
sketch3.addConstraint(Sketcher.Constraint("Horizontal", 4, 3, 32, 3))
sketch3.addConstraint(Sketcher.Constraint("Horizontal", 2, 3, 34, 3))
sketch3.addConstraint(Sketcher.Constraint("Horizontal", 40, 3, 44, 3))
sketch3.addConstraint(Sketcher.Constraint("Horizontal", 38, 3, 46, 3))
sketch3.addConstraint(Sketcher.Constraint("Vertical", 4, 3, 38, 3))
sketch3.addConstraint(Sketcher.Constraint("Vertical", 34, 3, 44, 3))
sketch3.addConstraint(Sketcher.Constraint("Vertical", 5, 2, 36, 2))
sketch3.addConstraint(Sketcher.Constraint("Equal", 6, 12))
sketch3.addConstraint(Sketcher.Constraint("Equal", 12, 18))
sketch3.addConstraint(Sketcher.Constraint("Equal", 18, 24))
sketch3.addConstraint(Sketcher.Constraint("Equal", 5, 31))
sketch3.addConstraint(Sketcher.Constraint("Equal", 24, 0))
sketch3.addConstraint(Sketcher.Constraint("Equal", 30, 36))
sketch3.addConstraint(Sketcher.Constraint("Radius", 2, Q("2 mm")))
sketch3.addConstraint(Sketcher.Constraint("DistanceX", 6, 2, 6, 1, Q("8 mm")))
sketch3.addConstraint(Sketcher.Constraint("DistanceY", 8, 2, -1, 1, Q("13 mm")))
sketch3.addConstraint(Sketcher.Constraint("DistanceX", 32, 2, -1, 1, Q("6.5 mm")))
sketch3.addConstraint(Sketcher.Constraint("DistanceY", -1, 1, 2, 3, Q("14 mm")))
sketch3.addConstraint(Sketcher.Constraint("DistanceY", -1, 1, 38, 3, Q("37 mm")))
sketch3.addConstraint(Sketcher.Constraint("DistanceX", -1, 1, 0, 2, Q("335 mm")))
sketch3.addConstraint(Sketcher.Constraint("DistanceX", -1, 1, 8, 3, Q("268.4 mm")))
sketch3.addConstraint(Sketcher.Constraint("DistanceX", -1, 1, 14, 3, Q("199.8 mm")))
sketch3.addConstraint(Sketcher.Constraint("DistanceX", -1, 1, 20, 3, Q("131.2 mm")))
sketch3.addConstraint(Sketcher.Constraint("DistanceX", -1, 1, 26, 3, Q("62.6 mm")))
pad2 = body.newObject("PartDesign::Pad", "Pad001")
pad2.Profile = sketch3
pad2.Length = 6.5
pad2.Reversed = True

# Sketch on XY plane
sketch4 = body.newObject("Sketcher::SketchObject", "Sketch003")
sketch4.AttachmentSupport = (doc.getObject("XY_Plane"), [""])
sketch4.MapMode = "FlatFace"
sketch4.AttachmentOffset = App.Placement(App.Vector(0, 0, 6.5), App.Rotation())
sketch4.addGeometry(Part.LineSegment(App.Vector(0, 12, 0), App.Vector(0, 20, 0)), False)
sketch4.addGeometry(Part.LineSegment(App.Vector(0, 20, 0), App.Vector(-4.5, 20, 0)), False)
sketch4.addGeometry(Part.ArcOfCircle(Part.Circle(App.Vector(-4.5, 18, 0), App.Vector(0, 0, 1), 2), math.radians(90), math.radians(180)), False)
sketch4.addGeometry(Part.LineSegment(App.Vector(-6.5, 18, 0), App.Vector(-6.5, 14, 0)), False)
sketch4.addGeometry(Part.ArcOfCircle(Part.Circle(App.Vector(-4.5, 14, 0), App.Vector(0, 0, 1), 2), math.radians(180), math.radians(270)), False)
sketch4.addGeometry(Part.LineSegment(App.Vector(-4.5, 12, 0), App.Vector(0, 12, 0)), False)
sketch4.addGeometry(Part.LineSegment(App.Vector(335, 20, 0), App.Vector(335, 12, 0)), False)
sketch4.addGeometry(Part.LineSegment(App.Vector(335, 12, 0), App.Vector(339.5, 12, 0)), False)
sketch4.addGeometry(Part.ArcOfCircle(Part.Circle(App.Vector(339.5, 14, 0), App.Vector(0, 0, 1), 2), math.radians(-90), math.radians(0)), False)
sketch4.addGeometry(Part.LineSegment(App.Vector(341.5, 14, 0), App.Vector(341.5, 18, 0)), False)
sketch4.addGeometry(Part.ArcOfCircle(Part.Circle(App.Vector(339.5, 18, 0), App.Vector(0, 0, 1), 2), math.radians(0), math.radians(90)), False)
sketch4.addGeometry(Part.LineSegment(App.Vector(339.5, 20, 0), App.Vector(335, 20, 0)), False)
sketch4.addConstraint(Sketcher.Constraint("Coincident", 0, 2, 1, 1))
sketch4.addConstraint(Sketcher.Constraint("Tangent", 1, 2, 2, 1))
sketch4.addConstraint(Sketcher.Constraint("Tangent", 2, 2, 3, 1))
sketch4.addConstraint(Sketcher.Constraint("Tangent", 3, 2, 4, 1))
sketch4.addConstraint(Sketcher.Constraint("Tangent", 4, 2, 5, 1))
sketch4.addConstraint(Sketcher.Constraint("Coincident", 5, 2, 0, 1))
sketch4.addConstraint(Sketcher.Constraint("Coincident", 6, 2, 7, 1))
sketch4.addConstraint(Sketcher.Constraint("Tangent", 7, 2, 8, 1))
sketch4.addConstraint(Sketcher.Constraint("Tangent", 8, 2, 9, 1))
sketch4.addConstraint(Sketcher.Constraint("Tangent", 9, 2, 10, 1))
sketch4.addConstraint(Sketcher.Constraint("Tangent", 10, 2, 11, 1))
sketch4.addConstraint(Sketcher.Constraint("Coincident", 11, 2, 6, 1))
sketch4.addConstraint(Sketcher.Constraint("Vertical", 0))
sketch4.addConstraint(Sketcher.Constraint("Horizontal", 1))
sketch4.addConstraint(Sketcher.Constraint("Vertical", 3))
sketch4.addConstraint(Sketcher.Constraint("Horizontal", 5))
sketch4.addConstraint(Sketcher.Constraint("Vertical", 6))
sketch4.addConstraint(Sketcher.Constraint("Horizontal", 7))
sketch4.addConstraint(Sketcher.Constraint("Vertical", 9))
sketch4.addConstraint(Sketcher.Constraint("Horizontal", 11))
sketch4.addConstraint(Sketcher.Constraint("Equal", 2, 4))
sketch4.addConstraint(Sketcher.Constraint("Equal", 4, 8))
sketch4.addConstraint(Sketcher.Constraint("Equal", 8, 10))
sketch4.addConstraint(Sketcher.Constraint("PointOnObject", 0, 2, -2))
sketch4.addConstraint(Sketcher.Constraint("Horizontal", 4, 3, 8, 3))
sketch4.addConstraint(Sketcher.Constraint("Horizontal", 2, 3, 10, 3))
sketch4.addConstraint(Sketcher.Constraint("Equal", 5, 7))
sketch4.addConstraint(Sketcher.Constraint("Radius", 2, Q("2 mm")))
sketch4.addConstraint(Sketcher.Constraint("DistanceY", 0, 1, 0, 2, Q("8 mm")))
sketch4.addConstraint(Sketcher.Constraint("DistanceX", 1, 2, 1, 1, Q("4.5 mm")))
sketch4.addConstraint(Sketcher.Constraint("DistanceY", -1, 1, 2, 3, Q("18 mm")))
sketch4.addConstraint(Sketcher.Constraint("DistanceX", -1, 1, 6, 2, Q("335 mm")))
pocket2 = body.newObject("PartDesign::Pocket", "Pocket001")
pocket2.Profile = sketch4
pocket2.Type = "ThroughAll"

# Sketch on XY plane
sketch5 = body.newObject("Sketcher::SketchObject", "Sketch004")
sketch5.AttachmentSupport = (doc.getObject("XY_Plane"), [""])
sketch5.MapMode = "FlatFace"
sketch5.AttachmentOffset = App.Placement(App.Vector(0, 0, 6.5), App.Rotation())
sketch5.addGeometry(Part.Circle(App.Vector(83.25, 20, 0), App.Vector(0, 0, 1), 2.25), False)
sketch5.addGeometry(Part.Circle(App.Vector(251.75, 20, 0), App.Vector(0, 0, 1), 2.25), False)
sketch5.addConstraint(Sketcher.Constraint("Equal", 0, 1))
sketch5.addConstraint(Sketcher.Constraint("Horizontal", 0, 3, 1, 3))
sketch5.addConstraint(Sketcher.Constraint("Diameter", 0, Q("4.5 mm")))
sketch5.addConstraint(Sketcher.Constraint("DistanceY", -1, 1, 0, 3, Q("20 mm")))
sketch5.addConstraint(Sketcher.Constraint("DistanceX", -1, 1, 0, 3, Q("83.25 mm")))
sketch5.addConstraint(Sketcher.Constraint("DistanceX", 0, 3, 1, 3, Q("168.5 mm")))
pocket3 = body.newObject("PartDesign::Pocket", "Pocket002")
pocket3.Profile = sketch5
pocket3.Type = "ThroughAll"

doc.recompute()
